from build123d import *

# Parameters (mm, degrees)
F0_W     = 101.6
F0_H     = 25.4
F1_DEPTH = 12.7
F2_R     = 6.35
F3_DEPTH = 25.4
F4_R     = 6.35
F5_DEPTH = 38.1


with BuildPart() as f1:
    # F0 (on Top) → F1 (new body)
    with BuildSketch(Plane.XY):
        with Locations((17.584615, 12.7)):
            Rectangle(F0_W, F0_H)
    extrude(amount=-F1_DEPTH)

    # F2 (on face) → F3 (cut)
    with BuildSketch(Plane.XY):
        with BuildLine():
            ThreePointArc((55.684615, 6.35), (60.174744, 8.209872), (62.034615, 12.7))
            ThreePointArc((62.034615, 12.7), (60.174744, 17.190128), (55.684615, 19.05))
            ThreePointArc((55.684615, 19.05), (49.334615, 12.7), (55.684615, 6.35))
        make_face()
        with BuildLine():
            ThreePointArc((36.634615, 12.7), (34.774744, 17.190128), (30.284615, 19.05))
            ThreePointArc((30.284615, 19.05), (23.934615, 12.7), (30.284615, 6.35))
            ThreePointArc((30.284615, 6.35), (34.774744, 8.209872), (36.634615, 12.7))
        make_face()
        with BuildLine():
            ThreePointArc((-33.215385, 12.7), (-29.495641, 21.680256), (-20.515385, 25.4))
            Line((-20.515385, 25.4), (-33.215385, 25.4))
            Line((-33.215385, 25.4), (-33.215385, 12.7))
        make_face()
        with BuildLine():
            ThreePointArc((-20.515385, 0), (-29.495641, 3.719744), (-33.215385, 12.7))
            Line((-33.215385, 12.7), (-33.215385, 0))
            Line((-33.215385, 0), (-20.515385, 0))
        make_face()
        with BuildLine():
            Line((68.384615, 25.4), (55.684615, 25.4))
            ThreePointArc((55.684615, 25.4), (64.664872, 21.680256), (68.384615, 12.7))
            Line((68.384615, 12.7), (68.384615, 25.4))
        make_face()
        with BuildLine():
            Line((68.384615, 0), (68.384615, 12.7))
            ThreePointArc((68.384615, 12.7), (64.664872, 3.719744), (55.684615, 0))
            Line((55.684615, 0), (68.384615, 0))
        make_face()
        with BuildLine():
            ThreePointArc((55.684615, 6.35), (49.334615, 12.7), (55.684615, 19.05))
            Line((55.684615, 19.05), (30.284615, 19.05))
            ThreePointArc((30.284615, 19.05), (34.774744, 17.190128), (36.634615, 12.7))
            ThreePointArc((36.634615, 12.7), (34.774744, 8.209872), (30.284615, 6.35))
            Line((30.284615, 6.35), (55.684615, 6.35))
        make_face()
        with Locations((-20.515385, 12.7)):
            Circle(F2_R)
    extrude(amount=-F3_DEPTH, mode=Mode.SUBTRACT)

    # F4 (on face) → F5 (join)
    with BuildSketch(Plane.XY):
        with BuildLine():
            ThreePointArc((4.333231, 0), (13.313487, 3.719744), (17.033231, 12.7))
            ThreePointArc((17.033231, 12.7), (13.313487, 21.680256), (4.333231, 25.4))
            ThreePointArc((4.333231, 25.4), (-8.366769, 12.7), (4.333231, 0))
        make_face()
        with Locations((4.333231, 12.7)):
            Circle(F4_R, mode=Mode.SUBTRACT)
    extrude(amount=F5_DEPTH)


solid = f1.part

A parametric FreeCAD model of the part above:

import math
import FreeCAD as App
import Part
import Sketcher
Q = App.Units.Quantity


def add_polygon(sketch, points):
    """Adds a closed chain of lines whose ends are joined by coincident constraints."""
    first, n = sketch.GeometryCount, len(points)
    for a, b in zip(points, points[1:] + points[:1]):
        sketch.addGeometry(Part.LineSegment(App.Vector(*a, 0), App.Vector(*b, 0)), False)
    for i in range(n):
        sketch.addConstraint(Sketcher.Constraint("Coincident", first + i, 2, first + (i + 1) % n, 1))

doc = App.newDocument("Part")
body = doc.addObject("PartDesign::Body", "Body")

# Sketch on XY plane
sketch1 = doc.addObject("Sketcher::SketchObject", "Sketch")
body.addObject(sketch1)
sketch1.AttachmentSupport = (doc.XY_Plane, [""])
sketch1.MapMode = "FlatFace"
add_polygon(sketch1, [(-33.215385, 25.4), (-33.215385, 0), (68.384615, 0), (68.384615, 25.4)])  # lines 0-3
sketch1.addConstraint([
    Sketcher.Constraint("Vertical", 0),
    Sketcher.Constraint("Horizontal", 1),
    Sketcher.Constraint("Vertical", 2),
    Sketcher.Constraint("Horizontal", 3),
    Sketcher.Constraint("PointOnObject", 0, 2, -1),
    Sketcher.Constraint("DistanceX", 1, 1, 1, 2, Q("4 in")),
    Sketcher.Constraint("DistanceY", 0, 2, 0, 1, Q("1 in")),
    Sketcher.Constraint("DistanceX", 0, 2, -1, 1, 33.215385),
])
pad1 = doc.addObject("PartDesign::Pad", "Pad")
body.addObject(pad1)
pad1.Profile = sketch1
pad1.Length = Q("0.5 in")
pad1.Reversed = True

# Sketch on XY plane
sketch2 = doc.addObject("Sketcher::SketchObject", "Sketch001")
body.addObject(sketch2)
sketch2.AttachmentSupport = (doc.XY_Plane, [""])
sketch2.MapMode = "FlatFace"
sketch2.addGeometry([
    Part.ArcOfCircle(Part.Circle(App.Vector(55.684616, 12.699998, 0), App.Vector(0, 0, 1), 6.349998), math.radians(-90.000014), math.radians(0.000014)),  # 0
    Part.ArcOfCircle(Part.Circle(App.Vector(55.684616, 12.700002, 0), App.Vector(0, 0, 1), 6.349998), math.radians(-0.000014), math.radians(90.000014)),  # 1
    Part.LineSegment(App.Vector(55.684615, 19.05, 0), App.Vector(30.284615, 19.05, 0)),  # 2
    Part.ArcOfCircle(Part.Circle(App.Vector(30.284615, 12.7, 0), App.Vector(0, 0, 1), 6.35), math.radians(90), math.radians(270)),  # 3
    Part.LineSegment(App.Vector(30.284615, 6.35, 0), App.Vector(55.684615, 6.35, 0)),  # 4
    Part.ArcOfCircle(Part.Circle(App.Vector(-20.515385, 12.7, 0), App.Vector(0, 0, 1), 12.7), math.radians(90.000002), math.radians(179.999998)),  # 5
    Part.LineSegment(App.Vector(-20.515385, 25.4, 0), App.Vector(-33.215385, 25.4, 0)),  # 6
    Part.LineSegment(App.Vector(-33.215385, 25.4, 0), App.Vector(-33.215385, 12.7, 0)),  # 7
    Part.ArcOfCircle(Part.Circle(App.Vector(-20.515385, 12.7, 0), App.Vector(0, 0, 1), 12.7), math.radians(-179.999998), math.radians(-90.000002)),  # 8
    Part.LineSegment(App.Vector(-33.215385, 12.7, 0), App.Vector(-33.215385, 0, 0)),  # 9
    Part.LineSegment(App.Vector(-33.215385, 0, 0), App.Vector(-20.515385, 0, 0)),  # 10
    Part.LineSegment(App.Vector(68.384615, 25.4, 0), App.Vector(55.684615, 25.4, 0)),  # 11
    Part.ArcOfCircle(Part.Circle(App.Vector(55.684616, 12.700001, 0), App.Vector(0, 0, 1), 12.699999), math.radians(-0.000006), math.radians(90.000006)),  # 12
    Part.LineSegment(App.Vector(68.384615, 12.7, 0), App.Vector(68.384615, 25.4, 0)),  # 13
    Part.LineSegment(App.Vector(68.384615, 0, 0), App.Vector(68.384615, 12.7, 0)),  # 14
    Part.ArcOfCircle(Part.Circle(App.Vector(55.684616, 12.699999, 0), App.Vector(0, 0, 1), 12.699999), math.radians(-90.000006), math.radians(0.000006)),  # 15
    Part.LineSegment(App.Vector(55.684615, 0, 0), App.Vector(68.384615, 0, 0)),  # 16
    Part.Circle(App.Vector(-20.515385, 12.7, 0), App.Vector(0, 0, 1), 6.35),  # 17
], False)
sketch2.addConstraint([
    Sketcher.Constraint("Tangent", 0, 2, 1, 1),
    Sketcher.Constraint("Tangent", 1, 2, 2, 1),
    Sketcher.Constraint("Tangent", 2, 2, 3, 1),
    Sketcher.Constraint("Tangent", 3, 2, 4, 1),
    Sketcher.Constraint("Tangent", 4, 2, 0, 1),
    Sketcher.Constraint("Tangent", 5, 1, 6, 1),
    Sketcher.Constraint("Coincident", 6, 2, 7, 1),
    Sketcher.Constraint("Tangent", 7, 2, 5, 2),
    Sketcher.Constraint("Tangent", 8, 1, 9, 1),
    Sketcher.Constraint("Coincident", 9, 2, 10, 1),
    Sketcher.Constraint("Tangent", 10, 2, 8, 2),
    Sketcher.Constraint("Tangent", 11, 2, 12, 2),
    Sketcher.Constraint("Tangent", 12, 1, 13, 1),
    Sketcher.Constraint("Coincident", 13, 2, 11, 1),
    Sketcher.Constraint("Tangent", 14, 2, 15, 2),
    Sketcher.Constraint("Tangent", 15, 1, 16, 1),
    Sketcher.Constraint("Coincident", 16, 2, 14, 1),
    Sketcher.Constraint("Horizontal", 2),
    Sketcher.Constraint("Horizontal", 4),
    Sketcher.Constraint("Horizontal", 6),
    Sketcher.Constraint("Vertical", 7),
    Sketcher.Constraint("Vertical", 9),
    Sketcher.Constraint("Horizontal", 10),
    Sketcher.Constraint("Horizontal", 11),
    Sketcher.Constraint("Vertical", 13),
    Sketcher.Constraint("Vertical", 14),
    Sketcher.Constraint("Horizontal", 16),
    Sketcher.Constraint("Coincident", 8, 3, 5, 3),
    Sketcher.Constraint("Coincident", 12, 3, 0, 3),
    Sketcher.Constraint("Coincident", 15, 3, 0, 3),
    Sketcher.Constraint("Coincident", 17, 3, 5, 3),
    Sketcher.Constraint("Equal", 0, 1),
    Sketcher.Constraint("Equal", 5, 8),
    Sketcher.Constraint("Equal", 8, 12),
    Sketcher.Constraint("Equal", 12, 15),
    Sketcher.Constraint("Equal", 3, 17),
    Sketcher.Constraint("PointOnObject", 9, 2, -1),
    Sketcher.Constraint("PointOnObject", 15, 1, -1),
    Sketcher.Constraint("Horizontal", 17, 3, 0, 2),
    Sketcher.Constraint("Diameter", 17, Q("0.5 in")),
    Sketcher.Constraint("Radius", 5, Q("0.5 in")),
    Sketcher.Constraint("DistanceX", 2, 2, 2, 1, Q("1 in")),
    Sketcher.Constraint("DistanceX", 5, 3, 3, 3, Q("2 in")),
    Sketcher.Constraint("DistanceX", -1, 1, 0, 3, 55.684616),
])
pocket1 = doc.addObject("PartDesign::Pocket", "Pocket")
body.addObject(pocket1)
pocket1.Profile = sketch2
pocket1.Length = Q("1 in")

# Sketch on XY plane
sketch3 = doc.addObject("Sketcher::SketchObject", "Sketch002")
body.addObject(sketch3)
sketch3.AttachmentSupport = (doc.XY_Plane, [""])
sketch3.MapMode = "FlatFace"
sketch3.addGeometry([
    Part.ArcOfCircle(Part.Circle(App.Vector(4.333231, 12.7, 0), App.Vector(0, 0, 1), 12.7), math.radians(-89.999998), math.radians(-0.000002)),
    Part.ArcOfCircle(Part.Circle(App.Vector(4.333231, 12.7, 0), App.Vector(0, 0, 1), 12.7), math.radians(0.000002), math.radians(89.999998)),
    Part.ArcOfCircle(Part.Circle(App.Vector(4.333231, 12.7, 0), App.Vector(0, 0, 1), 12.7), math.radians(90), math.radians(270)),
    Part.Circle(App.Vector(4.333231, 12.7, 0), App.Vector(0, 0, 1), 6.35),
], False)
sketch3.addConstraint([
    Sketcher.Constraint("Tangent", 0, 2, 1, 1),
    Sketcher.Constraint("Tangent", 1, 2, 2, 1),
    Sketcher.Constraint("Tangent", 2, 2, 0, 1),
    Sketcher.Constraint("Coincident", 3, 3, 0, 3),
    Sketcher.Constraint("PointOnObject", 2, 2, -1),
    Sketcher.Constraint("Horizontal", 3, 3, 0, 2),
    Sketcher.Constraint("Vertical", 3, 3, 1, 2),
    Sketcher.Constraint("Vertical", 1, 2, 2, 2),
    Sketcher.Constraint("Diameter", 3, Q("0.5 in")),
    Sketcher.Constraint("Radius", 0, Q("0.5 in")),
    Sketcher.Constraint("DistanceX", -1, 1, 0, 3, 4.333231),
])
pad2 = doc.addObject("PartDesign::Pad", "Pad001")
body.addObject(pad2)
pad2.Profile = sketch3
pad2.Length = Q("1.5 in")

doc.recompute()
